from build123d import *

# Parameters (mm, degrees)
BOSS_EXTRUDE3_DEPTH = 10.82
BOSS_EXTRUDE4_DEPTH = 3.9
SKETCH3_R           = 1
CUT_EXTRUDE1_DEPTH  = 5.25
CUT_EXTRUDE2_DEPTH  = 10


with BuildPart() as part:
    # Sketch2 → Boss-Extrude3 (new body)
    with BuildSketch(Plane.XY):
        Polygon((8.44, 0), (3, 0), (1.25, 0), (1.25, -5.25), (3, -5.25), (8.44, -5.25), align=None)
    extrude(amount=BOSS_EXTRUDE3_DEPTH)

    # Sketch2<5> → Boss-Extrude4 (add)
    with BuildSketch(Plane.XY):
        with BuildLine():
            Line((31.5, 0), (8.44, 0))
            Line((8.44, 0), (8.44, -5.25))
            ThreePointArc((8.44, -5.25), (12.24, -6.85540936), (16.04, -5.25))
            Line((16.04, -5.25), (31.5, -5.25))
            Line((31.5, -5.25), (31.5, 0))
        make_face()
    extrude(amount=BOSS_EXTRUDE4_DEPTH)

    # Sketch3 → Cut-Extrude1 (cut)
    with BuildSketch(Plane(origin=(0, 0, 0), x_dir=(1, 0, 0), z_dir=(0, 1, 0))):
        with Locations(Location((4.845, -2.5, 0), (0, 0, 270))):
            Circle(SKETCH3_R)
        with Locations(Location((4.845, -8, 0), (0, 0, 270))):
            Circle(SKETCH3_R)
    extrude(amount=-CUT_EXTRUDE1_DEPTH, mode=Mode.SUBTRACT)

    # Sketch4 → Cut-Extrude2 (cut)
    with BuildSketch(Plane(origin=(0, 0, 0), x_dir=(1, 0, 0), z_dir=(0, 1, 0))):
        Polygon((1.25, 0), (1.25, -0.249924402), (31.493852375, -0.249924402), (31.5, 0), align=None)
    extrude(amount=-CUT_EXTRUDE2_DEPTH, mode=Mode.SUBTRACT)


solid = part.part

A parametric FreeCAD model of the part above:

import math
import FreeCAD as App
import Part
import Sketcher
from FreeCAD import Vector
Q = App.Units.Quantity


def add_polygon(sketch, points):
    """Adds a closed chain of lines whose ends are joined by coincident constraints."""
    first, n = sketch.GeometryCount, len(points)
    for a, b in zip(points, points[1:] + points[:1]):
        sketch.addGeometry(Part.LineSegment(App.Vector(*a, 0), App.Vector(*b, 0)), False)
    for i in range(n):
        sketch.addConstraint(Sketcher.Constraint("Coincident", first + i, 2, first + (i + 1) % n, 1))

doc = App.newDocument("Part")
body = doc.addObject("PartDesign::Body", "Body")

# Sketch on XY plane
sketch1 = body.newObject("Sketcher::SketchObject", "Sketch")
sketch1.AttachmentSupport = (doc.getObject("XY_Plane"), [""])
sketch1.MapMode = "FlatFace"
add_polygon(sketch1, [(8.44, 0), (1.25, 0), (1.25, -5.25), (8.44, -5.25)])  # lines 0-3
sketch1.addConstraint([
    Sketcher.Constraint("Horizontal", 0),
    Sketcher.Constraint("Vertical", 1),
    Sketcher.Constraint("Horizontal", 2),
    Sketcher.Constraint("Vertical", 3),
    Sketcher.Constraint("PointOnObject", 0, 2, -1),
    Sketcher.Constraint("DistanceX", 0, 2, 0, 1, Q("7.19 mm")),
    Sketcher.Constraint("DistanceY", 1, 2, 1, 1, Q("5.25 mm")),
    Sketcher.Constraint("DistanceX", -1, 1, 0, 2, Q("1.25 mm")),
])
pad1 = body.newObject("PartDesign::Pad", "Pad")
pad1.Profile = sketch1
pad1.Length = 10.82

# Sketch on XY plane
sketch2 = body.newObject("Sketcher::SketchObject", "Sketch001")
sketch2.AttachmentSupport = (doc.getObject("XY_Plane"), [""])
sketch2.MapMode = "FlatFace"
sketch2.addGeometry([
    Part.LineSegment(Vector(31.5, 0, 0), Vector(8.44, 0, 0)),  # 0
    Part.LineSegment(Vector(8.44, 0, 0), Vector(8.44, -5.25, 0)),  # 1
    Part.ArcOfCircle(Part.Circle(Vector(12.24, -1.555409, 0), Vector(0, 0, 1), 5.3), math.radians(-135.805796), math.radians(-44.194204)),  # 2
    Part.LineSegment(Vector(16.04, -5.25, 0), Vector(31.5, -5.25, 0)),  # 3
    Part.LineSegment(Vector(31.5, -5.25, 0), Vector(31.5, 0, 0)),  # 4
], False)
sketch2.addConstraint([
    Sketcher.Constraint("Coincident", 0, 2, 1, 1),
    Sketcher.Constraint("Coincident", 1, 2, 2, 1),
    Sketcher.Constraint("Coincident", 2, 2, 3, 1),
    Sketcher.Constraint("Coincident", 3, 2, 4, 1),
    Sketcher.Constraint("Coincident", 4, 2, 0, 1),
    Sketcher.Constraint("Horizontal", 0),
    Sketcher.Constraint("Vertical", 1),
    Sketcher.Constraint("Horizontal", 3),
    Sketcher.Constraint("Vertical", 4),
    Sketcher.Constraint("PointOnObject", 0, 2, -1),
    Sketcher.Constraint("Horizontal", 1, 2, 2, 2),
    Sketcher.Constraint("Radius", 2, Q("5.3 mm")),
    Sketcher.Constraint("DistanceX", 0, 2, 0, 1, Q("23.06 mm")),
    Sketcher.Constraint("DistanceX", 3, 1, 3, 2, Q("15.46 mm")),
    Sketcher.Constraint("DistanceY", 1, 2, 1, 1, Q("5.25 mm")),
    Sketcher.Constraint("DistanceX", -1, 1, 3, 2, Q("31.5 mm")),
])
pad2 = body.newObject("PartDesign::Pad", "Pad001")
pad2.Profile = sketch2
pad2.Length = 3.9

# Sketch on XZ plane
sketch3 = body.newObject("Sketcher::SketchObject", "Sketch002")
sketch3.AttachmentSupport = (doc.getObject("XZ_Plane"), [""])
sketch3.MapMode = "FlatFace"
sketch3.addGeometry([
    Part.Circle(Vector(4.845, 2.5, 0), Vector(0, 0, 1), 1),
    Part.Circle(Vector(4.845, 8, 0), Vector(0, 0, 1), 1),
], False)
sketch3.addConstraint([
    Sketcher.Constraint("Equal", 0, 1),
    Sketcher.Constraint("Vertical", 0, 3, 1, 3),
    Sketcher.Constraint("Diameter", 0, Q("2 mm")),
    Sketcher.Constraint("DistanceY", -1, 1, 1, 3, Q("8 mm")),
    Sketcher.Constraint("DistanceY", -1, 1, 0, 3, Q("2.5 mm")),
    Sketcher.Constraint("DistanceX", -1, 1, 0, 3, Q("4.845 mm")),
])
pocket1 = body.newObject("PartDesign::Pocket", "Pocket")
pocket1.Profile = sketch3
pocket1.Length = 5.25
pocket1.Reversed = True

# Sketch on XZ plane
sketch4 = body.newObject("Sketcher::SketchObject", "Sketch003")
sketch4.AttachmentSupport = (doc.getObject("XZ_Plane"), [""])
sketch4.MapMode = "FlatFace"
add_polygon(sketch4, [(1.25, 0), (1.25, 0.249924), (31.493852, 0.249924), (31.5, 0)])  # lines 0-3
sketch4.addConstraint([
    Sketcher.Constraint("Vertical", 0),
    Sketcher.Constraint("Horizontal", 1),
    Sketcher.Constraint("Horizontal", 3),
    Sketcher.Constraint("PointOnObject", 2, 2, -1),
    Sketcher.Constraint("DistanceX", 3, 2, 3, 1, Q("30.25 mm")),
    Sketcher.Constraint("DistanceX", -1, 1, 2, 2, Q("31.5 mm")),
    Sketcher.Constraint("Distance", 2, Q("0.25 mm")),
    Sketcher.Constraint("DistanceX", 1, 1, 1, 2, Q("30.243852 mm")),
])
pocket2 = body.newObject("PartDesign::Pocket", "Pocket001")
pocket2.Profile = sketch4
pocket2.Length = 10
pocket2.Reversed = True

doc.recompute()
